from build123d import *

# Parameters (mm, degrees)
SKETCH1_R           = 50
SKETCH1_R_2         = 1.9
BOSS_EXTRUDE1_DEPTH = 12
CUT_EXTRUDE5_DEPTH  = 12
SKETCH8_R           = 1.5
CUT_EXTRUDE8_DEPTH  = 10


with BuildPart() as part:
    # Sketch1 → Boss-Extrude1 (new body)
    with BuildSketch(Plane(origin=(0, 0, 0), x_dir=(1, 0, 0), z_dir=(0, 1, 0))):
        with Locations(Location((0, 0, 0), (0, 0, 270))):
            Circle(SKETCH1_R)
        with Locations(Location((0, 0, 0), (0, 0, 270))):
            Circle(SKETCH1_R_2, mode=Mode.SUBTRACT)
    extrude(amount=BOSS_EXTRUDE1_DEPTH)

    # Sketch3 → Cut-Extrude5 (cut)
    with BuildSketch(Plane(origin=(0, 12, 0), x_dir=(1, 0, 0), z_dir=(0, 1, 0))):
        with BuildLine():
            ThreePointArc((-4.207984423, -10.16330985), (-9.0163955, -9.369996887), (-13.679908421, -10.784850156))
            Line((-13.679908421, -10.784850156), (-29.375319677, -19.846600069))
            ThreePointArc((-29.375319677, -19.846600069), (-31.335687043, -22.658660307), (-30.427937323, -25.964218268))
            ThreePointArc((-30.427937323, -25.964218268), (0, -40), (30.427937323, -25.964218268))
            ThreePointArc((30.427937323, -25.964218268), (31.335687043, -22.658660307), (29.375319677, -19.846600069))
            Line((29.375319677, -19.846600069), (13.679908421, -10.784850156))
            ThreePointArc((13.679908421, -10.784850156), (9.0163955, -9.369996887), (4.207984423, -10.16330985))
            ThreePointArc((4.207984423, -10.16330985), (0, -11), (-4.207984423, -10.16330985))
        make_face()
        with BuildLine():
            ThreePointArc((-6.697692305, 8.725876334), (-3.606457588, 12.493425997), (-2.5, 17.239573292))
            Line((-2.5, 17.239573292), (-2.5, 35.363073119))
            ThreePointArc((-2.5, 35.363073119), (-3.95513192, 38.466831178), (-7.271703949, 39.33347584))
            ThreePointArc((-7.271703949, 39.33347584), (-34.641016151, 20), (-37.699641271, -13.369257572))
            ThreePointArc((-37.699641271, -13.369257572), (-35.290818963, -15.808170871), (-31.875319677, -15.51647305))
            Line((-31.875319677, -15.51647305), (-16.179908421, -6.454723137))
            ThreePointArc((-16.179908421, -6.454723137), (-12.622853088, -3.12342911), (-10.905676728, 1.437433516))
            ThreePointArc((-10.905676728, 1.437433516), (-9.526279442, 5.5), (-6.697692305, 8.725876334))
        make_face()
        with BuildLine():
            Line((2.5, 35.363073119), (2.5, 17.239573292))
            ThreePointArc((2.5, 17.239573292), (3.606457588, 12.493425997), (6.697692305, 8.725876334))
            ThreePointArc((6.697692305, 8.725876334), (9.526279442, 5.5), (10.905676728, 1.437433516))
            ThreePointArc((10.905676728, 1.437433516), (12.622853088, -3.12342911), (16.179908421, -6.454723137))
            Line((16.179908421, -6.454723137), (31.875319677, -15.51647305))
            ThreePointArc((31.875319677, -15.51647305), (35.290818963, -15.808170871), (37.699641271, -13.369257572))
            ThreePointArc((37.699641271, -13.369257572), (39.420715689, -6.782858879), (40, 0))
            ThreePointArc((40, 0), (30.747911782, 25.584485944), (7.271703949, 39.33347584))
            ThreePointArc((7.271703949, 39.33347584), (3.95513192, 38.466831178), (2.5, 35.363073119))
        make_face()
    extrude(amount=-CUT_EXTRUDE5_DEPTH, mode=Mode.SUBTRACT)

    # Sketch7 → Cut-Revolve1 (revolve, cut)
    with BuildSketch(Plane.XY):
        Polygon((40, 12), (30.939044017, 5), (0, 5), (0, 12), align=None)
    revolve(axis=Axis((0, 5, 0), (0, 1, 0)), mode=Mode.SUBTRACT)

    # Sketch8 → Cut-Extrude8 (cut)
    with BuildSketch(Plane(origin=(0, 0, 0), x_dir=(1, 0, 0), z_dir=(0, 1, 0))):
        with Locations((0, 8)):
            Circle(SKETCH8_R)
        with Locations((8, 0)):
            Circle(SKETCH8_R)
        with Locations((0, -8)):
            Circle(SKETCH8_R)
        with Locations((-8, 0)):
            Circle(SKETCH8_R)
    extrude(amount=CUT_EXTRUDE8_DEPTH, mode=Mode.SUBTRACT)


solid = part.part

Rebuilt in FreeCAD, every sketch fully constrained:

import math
import FreeCAD as App
import Part
import Sketcher
Q = App.Units.Quantity


def add_polygon(sketch, points):
    """Adds a closed chain of lines whose ends are joined by coincident constraints."""
    first, n = sketch.GeometryCount, len(points)
    for a, b in zip(points, points[1:] + points[:1]):
        sketch.addGeometry(Part.LineSegment(App.Vector(*a, 0), App.Vector(*b, 0)), False)
    for i in range(n):
        sketch.addConstraint(Sketcher.Constraint("Coincident", first + i, 2, first + (i + 1) % n, 1))

doc = App.newDocument("Part")
body = doc.addObject("PartDesign::Body", "Body")

sketch1 = body.newObject("Sketcher::SketchObject", "Sketch")
sketch1.AttachmentSupport = (doc.getObject("XZ_Plane"), [""])
sketch1.MapMode = "FlatFace"
sketch1.addGeometry([
    Part.Circle(App.Vector(0, 0, 0), App.Vector(0, 0, 1), 50),
    Part.Circle(App.Vector(0, 0, 0), App.Vector(0, 0, 1), 1.9),
], False)
sketch1.addConstraint([
    Sketcher.Constraint("Coincident", 0, 3, -1, 1),
    Sketcher.Constraint("Coincident", 1, 3, -1, 1),
    Sketcher.Constraint("Diameter", 0, Q("100 mm")),
    Sketcher.Constraint("Diameter", 1, Q("3.8 mm")),
])
pad1 = body.newObject("PartDesign::Pad", "Pad")
pad1.Profile = sketch1
pad1.Length = 12
pad1.Reversed = True

sketch2 = body.newObject("Sketcher::SketchObject", "Sketch001")
sketch2.AttachmentSupport = (doc.getObject("XZ_Plane"), [""])
sketch2.MapMode = "FlatFace"
sketch2.AttachmentOffset = App.Placement(App.Vector(0, 0, -12), App.Rotation())
sketch2.addGeometry([
    Part.ArcOfCircle(Part.Circle(App.Vector(-8.3, 20.1, 0), App.Vector(0, 0, 1), 10.7), math.radians(-120), math.radians(-68)),
    Part.LineSegment(App.Vector(-13.7, 10.8, 0), App.Vector(-29.4, 19.8, 0)),
    Part.ArcOfCircle(Part.Circle(App.Vector(-27.4, 23.3, 0), App.Vector(0, 0, 1), 4), math.radians(140), math.radians(240)),
    Part.ArcOfCircle(Part.Circle(App.Vector(0, 0, 0), App.Vector(0, 0, 1), 40), math.radians(40), math.radians(140)),
    Part.ArcOfCircle(Part.Circle(App.Vector(27.4, 23.3, 0), App.Vector(0, 0, 1), 4), math.radians(-60), math.radians(40)),
    Part.LineSegment(App.Vector(29.4, 19.8, 0), App.Vector(13.7, 10.8, 0)),
    Part.ArcOfCircle(Part.Circle(App.Vector(8.3, 20.1, 0), App.Vector(0, 0, 1), 10.7), math.radians(-112), math.radians(-60)),
    Part.ArcOfCircle(Part.Circle(App.Vector(0, 0, 0), App.Vector(0, 0, 1), 11), math.radians(68), math.radians(112)),
    Part.ArcOfCircle(Part.Circle(App.Vector(-13.2, -17.2, 0), App.Vector(0, 0, 1), 10.7), math.radians(0), math.radians(52)),
    Part.LineSegment(App.Vector(-2.5, -17.2, 0), App.Vector(-2.5, -35.4, 0)),
    Part.ArcOfCircle(Part.Circle(App.Vector(-6.5, -35.4, 0), App.Vector(0, 0, 1), 4), math.radians(-100), math.radians(0)),
    Part.ArcOfCircle(Part.Circle(App.Vector(0, 0, 0), App.Vector(0, 0, 1), 40), math.radians(160), math.radians(260)),
    Part.ArcOfCircle(Part.Circle(App.Vector(-33.9, 12, 0), App.Vector(0, 0, 1), 4), math.radians(60), math.radians(160)),
    Part.LineSegment(App.Vector(-31.9, 15.5, 0), App.Vector(-16.2, 6.5, 0)),
    Part.ArcOfCircle(Part.Circle(App.Vector(-21.5, -2.8, 0), App.Vector(0, 0, 1), 10.7), math.radians(8), math.radians(60)),
    Part.ArcOfCircle(Part.Circle(App.Vector(0, 0, 0), App.Vector(0, 0, 1), 11), math.radians(-172), math.radians(-128)),
    Part.LineSegment(App.Vector(2.5, -35.4, 0), App.Vector(2.5, -17.2, 0)),
    Part.ArcOfCircle(Part.Circle(App.Vector(13.2, -17.2, 0), App.Vector(0, 0, 1), 10.7), math.radians(128), math.radians(180)),
    Part.ArcOfCircle(Part.Circle(App.Vector(0, 0, 0), App.Vector(0, 0, 1), 11), math.radians(-52), math.radians(-8)),
    Part.ArcOfCircle(Part.Circle(App.Vector(21.5, -2.8, 0), App.Vector(0, 0, 1), 10.7), math.radians(120), math.radians(172)),
    Part.LineSegment(App.Vector(16.2, 6.5, 0), App.Vector(31.9, 15.5, 0)),
    Part.ArcOfCircle(Part.Circle(App.Vector(33.9, 12, 0), App.Vector(0, 0, 1), 4), math.radians(20), math.radians(120)),
    Part.ArcOfCircle(Part.Circle(App.Vector(0, 0, 0), App.Vector(0, 0, 1), 40), math.radians(0), math.radians(19.53)),
    Part.ArcOfCircle(Part.Circle(App.Vector(0, 0, 0), App.Vector(0, 0, 1), 40), math.radians(-80), math.radians(0)),
    Part.ArcOfCircle(Part.Circle(App.Vector(6.5, -35.4, 0), App.Vector(0, 0, 1), 4), math.radians(180), math.radians(280)),
], False)
sketch2.addConstraint([
    Sketcher.Constraint("Tangent", 0, 1, 1, 1),
    Sketcher.Constraint("Tangent", 1, 2, 2, 2),
    Sketcher.Constraint("Tangent", 2, 1, 3, 2),
    Sketcher.Constraint("Tangent", 3, 1, 4, 2),
    Sketcher.Constraint("Tangent", 4, 1, 5, 1),
    Sketcher.Constraint("Tangent", 5, 2, 6, 2),
    Sketcher.Constraint("Tangent", 6, 1, 7, 1),
    Sketcher.Constraint("Tangent", 7, 2, 0, 2),
    Sketcher.Constraint("Tangent", 8, 1, 9, 1),
    Sketcher.Constraint("Tangent", 9, 2, 10, 2),
    Sketcher.Constraint("Tangent", 10, 1, 11, 2),
    Sketcher.Constraint("Tangent", 11, 1, 12, 2),
    Sketcher.Constraint("Tangent", 12, 1, 13, 1),
    Sketcher.Constraint("Tangent", 13, 2, 14, 2),
    Sketcher.Constraint("Tangent", 14, 1, 15, 1),
    Sketcher.Constraint("Tangent", 15, 2, 8, 2),
    Sketcher.Constraint("Tangent", 16, 2, 17, 2),
    Sketcher.Constraint("Tangent", 17, 1, 18, 1),
    Sketcher.Constraint("Tangent", 18, 2, 19, 2),
    Sketcher.Constraint("Tangent", 19, 1, 20, 1),
    Sketcher.Constraint("Tangent", 20, 2, 21, 2),
    Sketcher.Constraint("Tangent", 21, 1, 22, 2),
    Sketcher.Constraint("Tangent", 22, 1, 23, 2),
    Sketcher.Constraint("Tangent", 23, 1, 24, 2),
    Sketcher.Constraint("Tangent", 24, 1, 16, 1),
    Sketcher.Constraint("Vertical", 9),
    Sketcher.Constraint("Vertical", 16),
    Sketcher.Constraint("Coincident", 3, 3, -1, 1),
    Sketcher.Constraint("Coincident", 7, 3, -1, 1),
    Sketcher.Constraint("Coincident", 11, 3, -1, 1),
    Sketcher.Constraint("Coincident", 15, 3, -1, 1),
    Sketcher.Constraint("Coincident", 18, 3, -1, 1),
    Sketcher.Constraint("Coincident", 22, 3, -1, 1),
    Sketcher.Constraint("Equal", 2, 4),
    Sketcher.Constraint("Equal", 0, 6),
    Sketcher.Constraint("Equal", 6, 8),
    Sketcher.Constraint("Equal", 4, 10),
    Sketcher.Constraint("Equal", 3, 11),
    Sketcher.Constraint("Equal", 10, 12),
    Sketcher.Constraint("Equal", 8, 14),
    Sketcher.Constraint("Equal", 7, 15),
    Sketcher.Constraint("Equal", 14, 17),
    Sketcher.Constraint("Equal", 15, 18),
    Sketcher.Constraint("Equal", 17, 19),
    Sketcher.Constraint("Equal", 12, 21),
    Sketcher.Constraint("Equal", 11, 22),
    Sketcher.Constraint("Equal", 22, 23),
    Sketcher.Constraint("Equal", 21, 24),
    Sketcher.Constraint("Symmetric", 1, 2, 4, 1, -2),
    Sketcher.Constraint("Symmetric", 13, 2, 19, 1, -2),
    Sketcher.Constraint("PointOnObject", 22, 1, -1),
    Sketcher.Constraint("Parallel", 1, 13),
    Sketcher.Constraint("Horizontal", 8, 3, 17, 3),
    Sketcher.Constraint("Equal", 5, 13),
    Sketcher.Constraint("Radius", 3, Q("40 mm")),
    Sketcher.Constraint("Radius", 7, Q("11 mm")),
    Sketcher.Constraint("Angle", 1, Q("150 deg")),
    Sketcher.Constraint("DistanceX", 8, 1, 16, 2, Q("5 mm")),
    Sketcher.Constraint("DistanceX", 12, 1, 1, 2, Q("2.5 mm")),
    Sketcher.Constraint("DistanceY", 9, 2, 9, 1, Q("18.1235 mm")),
    Sketcher.Constraint("Radius", 0, Q("10.732523 mm")),
])
pocket1 = body.newObject("PartDesign::Pocket", "Pocket")
pocket1.Profile = sketch2
pocket1.Length = 12
pocket1.Reversed = True

sketch3 = body.newObject("Sketcher::SketchObject", "Sketch002")
sketch3.AttachmentSupport = (doc.getObject("XY_Plane"), [""])
sketch3.MapMode = "FlatFace"
add_polygon(sketch3, [(31, 5), (40, 12), (0, 12), (0, 5)])
sketch3.addConstraint([
    Sketcher.Constraint("Horizontal", 1),
    Sketcher.Constraint("Vertical", 2),
    Sketcher.Constraint("Horizontal", 3),
    Sketcher.Constraint("PointOnObject", 1, 2, -2),
    Sketcher.Constraint("DistanceX", 1, 2, 1, 1, Q("40 mm")),
    Sketcher.Constraint("DistanceY", 2, 2, 2, 1, Q("7 mm")),
    Sketcher.Constraint("DistanceY", -1, 1, 0, 2, Q("12 mm")),
    Sketcher.Constraint("Distance", 0, Q("11.449931 mm")),
])
groove = body.newObject("PartDesign::Groove", "Groove")
groove.Profile = sketch3
groove.ReferenceAxis = (sketch3, ["V_Axis"])
groove.Angle = 360

sketch4 = body.newObject("Sketcher::SketchObject", "Sketch003")
sketch4.AttachmentSupport = (doc.getObject("XZ_Plane"), [""])
sketch4.MapMode = "FlatFace"
sketch4.addGeometry([
    Part.Circle(App.Vector(0, -8, 0), App.Vector(0, 0, 1), 1.5),
    Part.Circle(App.Vector(8, 0, 0), App.Vector(0, 0, 1), 1.5),
    Part.Circle(App.Vector(0, 8, 0), App.Vector(0, 0, 1), 1.5),
    Part.Circle(App.Vector(-8, 0, 0), App.Vector(0, 0, 1), 1.5),
], False)
sketch4.addConstraint([
    Sketcher.Constraint("Equal", 0, 1),
    Sketcher.Constraint("Equal", 1, 2),
    Sketcher.Constraint("Equal", 2, 3),
    Sketcher.Constraint("Symmetric", 0, 3, 2, 3, -1, 1),
    Sketcher.Constraint("Symmetric", 1, 3, 3, 3, -1, 1),
    Sketcher.Constraint("PointOnObject", 0, 3, -2),
    Sketcher.Constraint("PointOnObject", 1, 3, -1),
    Sketcher.Constraint("Diameter", 0, Q("3 mm")),
    Sketcher.Constraint("DistanceY", 0, 3, -1, 1, Q("8 mm")),
    Sketcher.Constraint("DistanceX", -1, 1, 1, 3, Q("8 mm")),
])
pocket2 = body.newObject("PartDesign::Pocket", "Pocket001")
pocket2.Profile = sketch4
pocket2.Length = 10

doc.recompute()
